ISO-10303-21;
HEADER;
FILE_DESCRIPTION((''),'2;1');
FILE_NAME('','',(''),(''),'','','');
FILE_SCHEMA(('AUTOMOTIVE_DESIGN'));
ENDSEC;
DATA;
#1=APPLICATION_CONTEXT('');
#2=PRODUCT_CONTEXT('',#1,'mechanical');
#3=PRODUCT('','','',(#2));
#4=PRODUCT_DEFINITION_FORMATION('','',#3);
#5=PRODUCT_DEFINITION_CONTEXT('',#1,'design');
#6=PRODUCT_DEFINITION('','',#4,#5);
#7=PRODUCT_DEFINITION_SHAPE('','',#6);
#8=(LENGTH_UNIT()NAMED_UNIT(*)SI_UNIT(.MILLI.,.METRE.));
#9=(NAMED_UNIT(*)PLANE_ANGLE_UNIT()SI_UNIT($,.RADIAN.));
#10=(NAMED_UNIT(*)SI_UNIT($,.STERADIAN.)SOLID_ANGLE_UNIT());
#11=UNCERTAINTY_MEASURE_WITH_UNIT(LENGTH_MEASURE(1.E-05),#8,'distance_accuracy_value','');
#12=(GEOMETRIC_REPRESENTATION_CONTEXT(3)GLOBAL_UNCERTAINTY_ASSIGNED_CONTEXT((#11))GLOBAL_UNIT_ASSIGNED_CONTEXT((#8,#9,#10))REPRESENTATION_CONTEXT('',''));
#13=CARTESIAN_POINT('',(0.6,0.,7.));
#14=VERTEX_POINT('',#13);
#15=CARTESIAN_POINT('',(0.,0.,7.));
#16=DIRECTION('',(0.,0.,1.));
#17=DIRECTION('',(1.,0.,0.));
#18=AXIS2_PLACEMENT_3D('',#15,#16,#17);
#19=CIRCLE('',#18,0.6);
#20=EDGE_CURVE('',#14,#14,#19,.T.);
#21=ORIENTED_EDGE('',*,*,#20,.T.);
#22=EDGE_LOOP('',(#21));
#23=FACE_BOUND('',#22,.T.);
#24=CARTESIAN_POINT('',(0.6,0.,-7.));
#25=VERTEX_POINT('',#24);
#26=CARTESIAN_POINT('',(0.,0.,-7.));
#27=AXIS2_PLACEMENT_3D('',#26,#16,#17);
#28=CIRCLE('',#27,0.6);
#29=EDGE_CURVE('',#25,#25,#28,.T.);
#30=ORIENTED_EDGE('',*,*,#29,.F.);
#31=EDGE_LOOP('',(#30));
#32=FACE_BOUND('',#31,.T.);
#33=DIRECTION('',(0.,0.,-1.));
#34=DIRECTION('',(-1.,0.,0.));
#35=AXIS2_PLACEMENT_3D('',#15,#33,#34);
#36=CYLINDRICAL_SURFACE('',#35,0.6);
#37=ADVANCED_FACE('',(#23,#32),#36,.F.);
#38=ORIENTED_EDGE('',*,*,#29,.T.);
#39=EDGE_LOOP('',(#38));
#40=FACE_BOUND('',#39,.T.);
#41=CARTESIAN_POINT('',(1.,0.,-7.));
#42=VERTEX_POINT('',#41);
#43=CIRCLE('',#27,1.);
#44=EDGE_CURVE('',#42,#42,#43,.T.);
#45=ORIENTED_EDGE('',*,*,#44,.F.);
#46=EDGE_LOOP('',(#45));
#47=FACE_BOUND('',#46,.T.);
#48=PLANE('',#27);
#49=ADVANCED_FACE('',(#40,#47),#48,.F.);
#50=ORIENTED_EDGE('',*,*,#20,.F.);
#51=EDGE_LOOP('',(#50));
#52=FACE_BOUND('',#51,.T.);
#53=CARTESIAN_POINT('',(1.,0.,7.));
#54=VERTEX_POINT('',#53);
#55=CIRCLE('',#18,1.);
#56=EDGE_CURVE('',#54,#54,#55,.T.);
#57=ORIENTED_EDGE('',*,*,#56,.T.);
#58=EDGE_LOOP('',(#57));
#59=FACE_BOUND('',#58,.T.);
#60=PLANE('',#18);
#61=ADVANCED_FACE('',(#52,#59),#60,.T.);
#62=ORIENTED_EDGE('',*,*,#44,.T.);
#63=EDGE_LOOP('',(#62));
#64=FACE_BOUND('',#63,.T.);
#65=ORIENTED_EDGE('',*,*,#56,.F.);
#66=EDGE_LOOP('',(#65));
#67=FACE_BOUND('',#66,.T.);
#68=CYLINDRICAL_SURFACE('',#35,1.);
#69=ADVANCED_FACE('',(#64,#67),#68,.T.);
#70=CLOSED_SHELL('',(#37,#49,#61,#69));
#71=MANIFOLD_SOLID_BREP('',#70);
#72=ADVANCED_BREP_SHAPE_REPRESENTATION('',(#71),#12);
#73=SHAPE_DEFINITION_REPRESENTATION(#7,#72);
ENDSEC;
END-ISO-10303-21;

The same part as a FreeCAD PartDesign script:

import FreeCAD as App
import Part
import Sketcher

V = App.Vector
Q = App.Units.Quantity

doc = App.newDocument("Part")
body = doc.addObject("PartDesign::Body", "Body")

# Sketch on XY plane
sketch1 = doc.addObject("Sketcher::SketchObject", "Sketch")
body.addObject(sketch1)
sketch1.AttachmentSupport = (doc.XY_Plane, [""])
sketch1.MapMode = "FlatFace"
sketch1.AttachmentOffset = App.Placement(V(0, 0, -7), App.Rotation())
sketch1.addGeometry([
    Part.Circle(V(0, 0, 0), V(0, 0, 1), 1),
    Part.Circle(V(0, 0, 0), V(0, 0, 1), 0.6),
], False)
sketch1.addConstraint([
    Sketcher.Constraint("Coincident", 0, 3, -1, 1),
    Sketcher.Constraint("Coincident", 1, 3, -1, 1),
    Sketcher.Constraint("Diameter", 0, Q("2 mm")),
    Sketcher.Constraint("Diameter", 1, Q("1.2 mm")),
])
pad1 = doc.addObject("PartDesign::Pad", "Pad")
body.addObject(pad1)
pad1.Profile = sketch1
pad1.Length = 14

doc.recompute()
